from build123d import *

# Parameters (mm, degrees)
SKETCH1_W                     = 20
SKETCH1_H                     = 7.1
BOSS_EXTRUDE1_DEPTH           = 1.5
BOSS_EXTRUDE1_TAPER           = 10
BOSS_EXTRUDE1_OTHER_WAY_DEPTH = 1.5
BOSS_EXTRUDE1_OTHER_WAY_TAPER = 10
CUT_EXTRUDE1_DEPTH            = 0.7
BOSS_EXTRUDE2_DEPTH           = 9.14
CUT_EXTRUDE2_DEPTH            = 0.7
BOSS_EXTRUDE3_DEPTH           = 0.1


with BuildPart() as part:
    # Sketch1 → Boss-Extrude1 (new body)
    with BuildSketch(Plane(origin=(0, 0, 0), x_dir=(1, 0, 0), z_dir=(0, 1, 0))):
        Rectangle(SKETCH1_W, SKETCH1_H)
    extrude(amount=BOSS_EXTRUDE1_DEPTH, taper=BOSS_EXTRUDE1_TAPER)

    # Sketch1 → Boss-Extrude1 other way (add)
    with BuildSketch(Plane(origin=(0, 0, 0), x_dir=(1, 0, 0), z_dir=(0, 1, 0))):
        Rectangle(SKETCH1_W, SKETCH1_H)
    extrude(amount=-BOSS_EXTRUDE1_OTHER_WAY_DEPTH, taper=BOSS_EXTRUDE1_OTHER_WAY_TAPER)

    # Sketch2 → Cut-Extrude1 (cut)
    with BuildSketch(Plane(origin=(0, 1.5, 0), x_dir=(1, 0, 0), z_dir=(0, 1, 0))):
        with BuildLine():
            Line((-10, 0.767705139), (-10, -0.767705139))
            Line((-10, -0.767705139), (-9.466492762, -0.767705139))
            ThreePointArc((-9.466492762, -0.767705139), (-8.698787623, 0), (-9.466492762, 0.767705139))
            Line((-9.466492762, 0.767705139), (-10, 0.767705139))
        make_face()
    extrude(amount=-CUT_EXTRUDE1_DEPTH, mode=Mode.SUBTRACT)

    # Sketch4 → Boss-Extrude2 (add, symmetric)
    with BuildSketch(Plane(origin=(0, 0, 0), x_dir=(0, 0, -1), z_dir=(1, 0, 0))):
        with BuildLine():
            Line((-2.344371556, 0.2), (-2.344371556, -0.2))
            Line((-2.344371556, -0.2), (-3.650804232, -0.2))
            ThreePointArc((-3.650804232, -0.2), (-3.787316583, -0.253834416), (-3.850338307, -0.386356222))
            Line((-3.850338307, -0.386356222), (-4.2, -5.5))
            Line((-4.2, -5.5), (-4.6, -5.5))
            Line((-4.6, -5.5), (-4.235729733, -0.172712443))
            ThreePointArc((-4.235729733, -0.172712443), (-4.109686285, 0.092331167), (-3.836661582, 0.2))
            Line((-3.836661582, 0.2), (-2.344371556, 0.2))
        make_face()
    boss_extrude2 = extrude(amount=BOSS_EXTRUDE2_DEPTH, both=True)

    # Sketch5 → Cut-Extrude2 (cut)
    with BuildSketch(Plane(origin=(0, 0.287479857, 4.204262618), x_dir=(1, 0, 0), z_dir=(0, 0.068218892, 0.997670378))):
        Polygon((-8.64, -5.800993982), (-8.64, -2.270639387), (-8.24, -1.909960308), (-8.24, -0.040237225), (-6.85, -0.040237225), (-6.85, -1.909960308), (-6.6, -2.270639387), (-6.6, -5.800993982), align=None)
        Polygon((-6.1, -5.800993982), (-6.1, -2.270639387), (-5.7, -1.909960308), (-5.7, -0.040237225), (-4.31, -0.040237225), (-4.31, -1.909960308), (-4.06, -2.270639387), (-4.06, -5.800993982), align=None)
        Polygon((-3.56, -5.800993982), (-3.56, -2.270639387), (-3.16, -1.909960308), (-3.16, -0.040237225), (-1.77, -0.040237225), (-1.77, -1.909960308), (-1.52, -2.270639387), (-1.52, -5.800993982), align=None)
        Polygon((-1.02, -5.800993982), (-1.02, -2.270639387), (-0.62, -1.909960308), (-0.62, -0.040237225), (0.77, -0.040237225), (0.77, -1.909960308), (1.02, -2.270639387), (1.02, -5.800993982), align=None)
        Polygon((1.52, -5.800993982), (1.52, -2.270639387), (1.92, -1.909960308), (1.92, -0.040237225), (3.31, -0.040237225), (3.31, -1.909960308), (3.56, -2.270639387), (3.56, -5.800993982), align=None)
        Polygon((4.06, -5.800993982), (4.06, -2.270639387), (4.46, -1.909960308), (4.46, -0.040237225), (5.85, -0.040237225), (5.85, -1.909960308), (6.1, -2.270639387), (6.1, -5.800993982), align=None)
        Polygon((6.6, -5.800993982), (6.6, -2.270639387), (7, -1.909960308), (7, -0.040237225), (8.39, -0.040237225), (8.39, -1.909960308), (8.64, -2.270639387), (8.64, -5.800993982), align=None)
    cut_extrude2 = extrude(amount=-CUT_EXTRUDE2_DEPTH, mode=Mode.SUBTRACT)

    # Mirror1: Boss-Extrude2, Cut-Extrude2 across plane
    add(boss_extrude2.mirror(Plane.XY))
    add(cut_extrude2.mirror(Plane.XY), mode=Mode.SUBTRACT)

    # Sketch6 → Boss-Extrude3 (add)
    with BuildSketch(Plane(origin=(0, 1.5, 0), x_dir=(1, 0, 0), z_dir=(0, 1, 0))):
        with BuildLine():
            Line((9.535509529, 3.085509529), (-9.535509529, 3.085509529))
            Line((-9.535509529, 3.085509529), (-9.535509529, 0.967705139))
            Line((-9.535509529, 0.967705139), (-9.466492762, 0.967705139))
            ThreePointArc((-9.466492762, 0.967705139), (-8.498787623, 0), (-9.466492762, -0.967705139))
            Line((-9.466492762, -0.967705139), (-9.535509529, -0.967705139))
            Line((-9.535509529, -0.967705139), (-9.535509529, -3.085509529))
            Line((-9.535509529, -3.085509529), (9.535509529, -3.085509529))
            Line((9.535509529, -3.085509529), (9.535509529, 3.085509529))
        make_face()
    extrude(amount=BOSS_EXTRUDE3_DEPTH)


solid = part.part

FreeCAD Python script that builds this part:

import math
import FreeCAD as App
import Part
import Sketcher
from FreeCAD import Vector


def add_polygon(sketch, points):
    """Adds a closed chain of lines whose ends are joined by coincident constraints."""
    first, n = sketch.GeometryCount, len(points)
    for a, b in zip(points, points[1:] + points[:1]):
        sketch.addGeometry(Part.LineSegment(App.Vector(*a, 0), App.Vector(*b, 0)), False)
    for i in range(n):
        sketch.addConstraint(Sketcher.Constraint("Coincident", first + i, 2, first + (i + 1) % n, 1))

doc = App.newDocument("Part")
params = doc.addObject("Spreadsheet::Sheet", "Params")
for row, (alias, value) in enumerate([
    ("sketch1_width", "20 mm"),
    ("sketch1_height", "7.1 mm"),
    ("pad1_length", "1.5 mm"),
    ("pad1_taper", "-10 deg"),
    ("sketch2_width", "20 mm"),
    ("sketch2_height", "7.1 mm"),
    ("pad2_length", "1.5 mm"),
    ("pad2_taper", "-10 deg"),
    ("pocket1_length", "0.7 mm"),
    ("sketch4_radius", "0.4 mm"),
    ("sketch4_radius2", "0.2 mm"),
    ("pad3_length", "18.28 mm"),
    ("sketch5_width", "2.04 mm"),
    ("sketch5_width2", "1.39 mm"),
    ("pocket2_length", "0.7 mm"),
    ("pad4_length", "0.1 mm"),
], start=1):
    params.set(f"A{row}", alias)
    params.set(f"B{row}", "=" + value)
    params.setAlias(f"B{row}", alias)

body = doc.addObject("PartDesign::Body", "Body")

sketch1 = body.newObject("Sketcher::SketchObject", "Sketch")
sketch1.AttachmentSupport = (doc.getObject("XZ_Plane"), [""])
sketch1.MapMode = "FlatFace"
add_polygon(sketch1, [(-10, -4), (-10, 4), (10, 4), (10, -4)])
sketch1.addConstraint([
    Sketcher.Constraint("Vertical", 0),
    Sketcher.Constraint("Horizontal", 1),
    Sketcher.Constraint("Vertical", 2),
    Sketcher.Constraint("Horizontal", 3),
    Sketcher.Constraint("Symmetric", 0, 2, 2, 2, -1, 1),
    Sketcher.Constraint("DistanceX", 1, 1, 1, 2, 20.0),
    Sketcher.Constraint("DistanceY", 0, 1, 0, 2, 7.1),
])
sketch1.setExpression("Constraints[9]", "Params.sketch1_width")
sketch1.setExpression("Constraints[10]", "Params.sketch1_height")
pad1 = body.newObject("PartDesign::Pad", "Pad")
pad1.Profile = sketch1
pad1.setExpression("Length", "Params.pad1_length")
pad1.Reversed = True
pad1.setExpression("TaperAngle", "Params.pad1_taper")

sketch2 = body.newObject("Sketcher::SketchObject", "Sketch001")
sketch2.AttachmentSupport = (doc.getObject("XZ_Plane"), [""])
sketch2.MapMode = "FlatFace"
add_polygon(sketch2, [(-10, -4), (-10, 4), (10, 4), (10, -4)])
sketch2.addConstraint([
    Sketcher.Constraint("Vertical", 0),
    Sketcher.Constraint("Horizontal", 1),
    Sketcher.Constraint("Vertical", 2),
    Sketcher.Constraint("Horizontal", 3),
    Sketcher.Constraint("Symmetric", 0, 2, 2, 2, -1, 1),
    Sketcher.Constraint("DistanceX", 1, 1, 1, 2, 20.0),
    Sketcher.Constraint("DistanceY", 0, 1, 0, 2, 7.1),
])
sketch2.setExpression("Constraints[9]", "Params.sketch2_width")
sketch2.setExpression("Constraints[10]", "Params.sketch2_height")
pad2 = body.newObject("PartDesign::Pad", "Pad001")
pad2.Profile = sketch2
pad2.setExpression("Length", "Params.pad2_length")
pad2.setExpression("TaperAngle", "Params.pad2_taper")

sketch3 = body.newObject("Sketcher::SketchObject", "Sketch002")
sketch3.AttachmentSupport = (doc.getObject("XZ_Plane"), [""])
sketch3.MapMode = "FlatFace"
sketch3.AttachmentOffset = App.Placement(Vector(0, 0, -1.5), App.Rotation())
sketch3.addGeometry([
    Part.LineSegment(Vector(-10, -0.8, 0), Vector(-10, 0.8, 0)),
    Part.LineSegment(Vector(-10, 0.8, 0), Vector(-9.5, 0.8, 0)),
    Part.ArcOfCircle(Part.Circle(Vector(-9.5, 0, 0), Vector(0, 0, 1), 0.8), math.radians(-90), math.radians(90)),
    Part.LineSegment(Vector(-9.5, -0.8, 0), Vector(-10, -0.8, 0)),
], False)
sketch3.addConstraint([
    Sketcher.Constraint("Coincident", 0, 2, 1, 1),
    Sketcher.Constraint("Tangent", 1, 2, 2, 2),
    Sketcher.Constraint("Tangent", 2, 1, 3, 1),
    Sketcher.Constraint("Coincident", 3, 2, 0, 1),
    Sketcher.Constraint("Vertical", 0),
    Sketcher.Constraint("Horizontal", 1),
    Sketcher.Constraint("Horizontal", 3),
    Sketcher.Constraint("PointOnObject", 2, 3, -1),
    Sketcher.Constraint("DistanceX", 0, 2, -1, 1, 10.0),
    Sketcher.Constraint("Radius", 2, 0.767705),
    Sketcher.Constraint("DistanceX", 1, 1, 1, 2, 0.533507),
])
pocket1 = body.newObject("PartDesign::Pocket", "Pocket")
pocket1.Profile = sketch3
pocket1.setExpression("Length", "Params.pocket1_length")
pocket1.Reversed = True

sketch4 = body.newObject("Sketcher::SketchObject", "Sketch003")
sketch4.AttachmentSupport = (doc.getObject("YZ_Plane"), [""])
sketch4.MapMode = "FlatFace"
sketch4.addGeometry([
    Part.LineSegment(Vector(-0.2, 2.34, 0), Vector(0.2, 2.34, 0)),
    Part.LineSegment(Vector(0.2, 2.34, 0), Vector(0.2, 3.84, 0)),
    Part.ArcOfCircle(Part.Circle(Vector(-0.2, 3.84, 0), Vector(0, 0, 1), 0.4), math.radians(0), math.radians(86)),
    Part.LineSegment(Vector(-0.17, 4.24, 0), Vector(-5.5, 4.6, 0)),
    Part.LineSegment(Vector(-5.5, 4.6, 0), Vector(-5.5, 4.2, 0)),
    Part.LineSegment(Vector(-5.5, 4.2, 0), Vector(-0.39, 3.85, 0)),
    Part.ArcOfCircle(Part.Circle(Vector(-0.4, 3.65, 0), Vector(0, 0, 1), 0.2), math.radians(0), math.radians(86)),
    Part.LineSegment(Vector(-0.2, 3.65, 0), Vector(-0.2, 2.34, 0)),
], False)
sketch4.addConstraint([
    Sketcher.Constraint("Coincident", 0, 2, 1, 1),
    Sketcher.Constraint("Tangent", 1, 2, 2, 1),
    Sketcher.Constraint("Tangent", 2, 2, 3, 1),
    Sketcher.Constraint("Coincident", 3, 2, 4, 1),
    Sketcher.Constraint("Coincident", 4, 2, 5, 1),
    Sketcher.Constraint("Tangent", 5, 2, 6, 2),
    Sketcher.Constraint("Tangent", 6, 1, 7, 1),
    Sketcher.Constraint("Coincident", 7, 2, 0, 1),
    Sketcher.Constraint("Horizontal", 0),
    Sketcher.Constraint("Vertical", 1),
    Sketcher.Constraint("Vertical", 4),
    Sketcher.Constraint("Vertical", 7),
    Sketcher.Constraint("Parallel", 3, 5),
    Sketcher.Constraint("Vertical", 2, 3, 6, 1),
    Sketcher.Constraint("Equal", 0, 4),
    Sketcher.Constraint("Radius", 2, 0.4),
    Sketcher.Constraint("Radius", 6, 0.2),
    Sketcher.Constraint("DistanceX", 2, 3, -1, 1, 0.2),
    Sketcher.Constraint("DistanceX", 3, 2, -1, 1, 5.5),
    Sketcher.Constraint("DistanceY", -1, 1, 3, 2, 4.6),
    Sketcher.Constraint("DistanceY", 1, 1, 1, 2, 1.49229),
    Sketcher.Constraint("DistanceY", 7, 2, 7, 1, 1.306433),
])
sketch4.setExpression("Constraints[15]", "Params.sketch4_radius")
sketch4.setExpression("Constraints[16]", "Params.sketch4_radius2")
pad3 = body.newObject("PartDesign::Pad", "Pad002")
pad3.Profile = sketch4
pad3.setExpression("Length", "Params.pad3_length")
pad3.Midplane = True

sketch5 = body.newObject("Sketcher::SketchObject", "Sketch004")
sketch5.Placement = App.Placement(Vector(0, 0.28748, 4.204263), App.Rotation(Vector(1, 0, 0), Vector(0, 0.997670378, -0.068218892), Vector(0, 0.068218892, 0.997670378), "ZXY"))
add_polygon(sketch5, [(-8.64, -2.27), (-8.64, -5.8), (-6.6, -5.8), (-6.6, -2.27), (-6.85, -1.91), (-6.85, -0.04), (-8.24, -0.04), (-8.24, -1.91)])
add_polygon(sketch5, [(-6.1, -2.27), (-6.1, -5.8), (-4.06, -5.8), (-4.06, -2.27), (-4.31, -1.91), (-4.31, -0.04), (-5.7, -0.04), (-5.7, -1.91)])
add_polygon(sketch5, [(-3.56, -2.27), (-3.56, -5.8), (-1.52, -5.8), (-1.52, -2.27), (-1.77, -1.91), (-1.77, -0.04), (-3.16, -0.04), (-3.16, -1.91)])
add_polygon(sketch5, [(-1.02, -2.27), (-1.02, -5.8), (1.02, -5.8), (1.02, -2.27), (0.77, -1.91), (0.77, -0.04), (-0.62, -0.04), (-0.62, -1.91)])
add_polygon(sketch5, [(1.52, -2.27), (1.52, -5.8), (3.56, -5.8), (3.56, -2.27), (3.31, -1.91), (3.31, -0.04), (1.92, -0.04), (1.92, -1.91)])
add_polygon(sketch5, [(4.06, -2.27), (4.06, -5.8), (6.1, -5.8), (6.1, -2.27), (5.85, -1.91), (5.85, -0.04), (4.46, -0.04), (4.46, -1.91)])
add_polygon(sketch5, [(6.6, -2.27), (6.6, -5.8), (8.64, -5.8), (8.64, -2.27), (8.39, -1.91), (8.39, -0.04), (7, -0.04), (7, -1.91)])
sketch5.addConstraint([
    Sketcher.Constraint("Vertical", 0),
    Sketcher.Constraint("Horizontal", 1),
    Sketcher.Constraint("Vertical", 2),
    Sketcher.Constraint("Vertical", 4),
    Sketcher.Constraint("Horizontal", 5),
    Sketcher.Constraint("Vertical", 6),
    Sketcher.Constraint("Vertical", 8),
    Sketcher.Constraint("Horizontal", 9),
    Sketcher.Constraint("Vertical", 10),
    Sketcher.Constraint("Vertical", 12),
    Sketcher.Constraint("Horizontal", 13),
    Sketcher.Constraint("Vertical", 14),
    Sketcher.Constraint("Vertical", 16),
    Sketcher.Constraint("Horizontal", 17),
    Sketcher.Constraint("Vertical", 18),
    Sketcher.Constraint("Vertical", 20),
    Sketcher.Constraint("Horizontal", 21),
    Sketcher.Constraint("Vertical", 22),
    Sketcher.Constraint("Vertical", 24),
    Sketcher.Constraint("Horizontal", 25),
    Sketcher.Constraint("Vertical", 26),
    Sketcher.Constraint("Vertical", 28),
    Sketcher.Constraint("Horizontal", 29),
    Sketcher.Constraint("Vertical", 30),
    Sketcher.Constraint("Vertical", 32),
    Sketcher.Constraint("Horizontal", 33),
    Sketcher.Constraint("Vertical", 34),
    Sketcher.Constraint("Vertical", 36),
    Sketcher.Constraint("Horizontal", 37),
    Sketcher.Constraint("Vertical", 38),
    Sketcher.Constraint("Vertical", 40),
    Sketcher.Constraint("Horizontal", 41),
    Sketcher.Constraint("Vertical", 42),
    Sketcher.Constraint("Vertical", 44),
    Sketcher.Constraint("Horizontal", 45),
    Sketcher.Constraint("Vertical", 46),
    Sketcher.Constraint("Vertical", 48),
    Sketcher.Constraint("Horizontal", 49),
    Sketcher.Constraint("Vertical", 50),
    Sketcher.Constraint("Vertical", 52),
    Sketcher.Constraint("Horizontal", 53),
    Sketcher.Constraint("Vertical", 54),
    Sketcher.Constraint("Symmetric", 26, 2, 31, 2, -2),
    Sketcher.Constraint("Symmetric", 17, 2, 32, 2, -2),
    Sketcher.Constraint("Symmetric", 23, 2, 34, 2, -2),
    Sketcher.Constraint("Symmetric", 9, 2, 40, 2, -2),
    Sketcher.Constraint("Symmetric", 15, 2, 42, 2, -2),
    Sketcher.Constraint("Symmetric", 1, 2, 48, 2, -2),
    Sketcher.Constraint("Symmetric", 7, 2, 50, 2, -2),
    Sketcher.Constraint("Parallel", 3, 11),
    Sketcher.Constraint("Parallel", 7, 15),
    Sketcher.Constraint("Parallel", 11, 19),
    Sketcher.Constraint("Parallel", 15, 23),
    Sketcher.Constraint("Parallel", 19, 27),
    Sketcher.Constraint("Parallel", 23, 31),
    Sketcher.Constraint("Parallel", 27, 35),
    Sketcher.Constraint("Parallel", 31, 39),
    Sketcher.Constraint("Parallel", 35, 43),
    Sketcher.Constraint("Parallel", 39, 47),
    Sketcher.Constraint("Parallel", 43, 51),
    Sketcher.Constraint("Parallel", 47, 55),
    Sketcher.Constraint("Horizontal", 3, 2, 6, 2),
    Sketcher.Constraint("Horizontal", 2, 2, 7, 2),
    Sketcher.Constraint("Horizontal", 1, 2, 8, 2),
    Sketcher.Constraint("Horizontal", 7, 2, 10, 2),
    Sketcher.Constraint("Horizontal", 6, 2, 11, 2),
    Sketcher.Constraint("Horizontal", 5, 2, 12, 2),
    Sketcher.Constraint("Horizontal", 11, 2, 14, 2),
    Sketcher.Constraint("Horizontal", 10, 2, 15, 2),
    Sketcher.Constraint("Horizontal", 9, 2, 16, 2),
    Sketcher.Constraint("Horizontal", 15, 2, 18, 2),
    Sketcher.Constraint("Horizontal", 14, 2, 19, 2),
    Sketcher.Constraint("Horizontal", 13, 2, 20, 2),
    Sketcher.Constraint("Horizontal", 19, 2, 22, 2),
    Sketcher.Constraint("Horizontal", 18, 2, 23, 2),
    Sketcher.Constraint("Horizontal", 17, 2, 24, 2),
    Sketcher.Constraint("Horizontal", 23, 2, 26, 2),
    Sketcher.Constraint("Horizontal", 22, 2, 27, 2),
    Sketcher.Constraint("Horizontal", 21, 2, 28, 2),
    Sketcher.Constraint("Horizontal", 27, 2, 30, 2),
    Sketcher.Constraint("Horizontal", 30, 2, 35, 2),
    Sketcher.Constraint("Horizontal", 29, 2, 36, 2),
    Sketcher.Constraint("Horizontal", 35, 2, 38, 2),
    Sketcher.Constraint("Horizontal", 34, 2, 39, 2),
    Sketcher.Constraint("Horizontal", 38, 2, 43, 2),
    Sketcher.Constraint("Horizontal", 37, 2, 44, 2),
    Sketcher.Constraint("Horizontal", 43, 2, 46, 2),
    Sketcher.Constraint("Horizontal", 42, 2, 47, 2),
    Sketcher.Constraint("Horizontal", 46, 2, 51, 2),
    Sketcher.Constraint("Horizontal", 45, 2, 52, 2),
    Sketcher.Constraint("Horizontal", 51, 2, 54, 2),
    Sketcher.Constraint("Horizontal", 50, 2, 55, 2),
    Sketcher.Constraint("Equal", 1, 9),
    Sketcher.Constraint("Equal", 9, 17),
    Sketcher.Constraint("Equal", 17, 25),
    Sketcher.Constraint("DistanceX", -1, 1, 53, 2, 7.0),
    Sketcher.Constraint("DistanceX", 1, 1, 1, 2, 2.04),
    Sketcher.Constraint("DistanceX", 5, 2, 5, 1, 1.39),
    Sketcher.Constraint("DistanceX", 1, 2, -1, 1, 6.6),
    Sketcher.Constraint("DistanceX", 8, 2, -1, 1, 6.1),
    Sketcher.Constraint("DistanceX", 9, 2, 16, 2, 0.5),
    Sketcher.Constraint("Distance", 7, 0.538599),
    Sketcher.Constraint("DistanceY", 0, 2, 0, 1, 3.530355),
    Sketcher.Constraint("DistanceY", 4, 1, 4, 2, 1.869723),
    Sketcher.Constraint("DistanceY", 2, 2, -1, 1, 2.270639),
])
sketch5.setExpression("Constraints[152]", "Params.sketch5_width")
sketch5.setExpression("Constraints[153]", "Params.sketch5_width2")
pocket2 = body.newObject("PartDesign::Pocket", "Pocket001")
pocket2.Profile = sketch5
pocket2.setExpression("Length", "Params.pocket2_length")
doc.recompute()

mirrored = body.newObject("PartDesign::Mirrored", "Mirrored")
mirrored.Originals = [pad3, pocket2]
mirrored.MirrorPlane = (doc.getObject("XY_Plane"), [""])
body.Tip = mirrored

sketch6 = body.newObject("Sketcher::SketchObject", "Sketch005")
sketch6.AttachmentSupport = (doc.getObject("XZ_Plane"), [""])
sketch6.MapMode = "FlatFace"
sketch6.AttachmentOffset = App.Placement(Vector(0, 0, -1.5), App.Rotation())
sketch6.addGeometry([
    Part.LineSegment(Vector(9.54, -3.09, 0), Vector(-9.54, -3.09, 0)),
    Part.LineSegment(Vector(-9.54, -3.09, 0), Vector(-9.54, -0.97, 0)),
    Part.LineSegment(Vector(-9.54, -0.97, 0), Vector(-9.47, -0.97, 0)),
    Part.ArcOfCircle(Part.Circle(Vector(-9.47, 0, 0), Vector(0, 0, 1), 0.97), math.radians(-90), math.radians(90)),
    Part.LineSegment(Vector(-9.47, 0.97, 0), Vector(-9.54, 0.97, 0)),
    Part.LineSegment(Vector(-9.54, 0.97, 0), Vector(-9.54, 3.09, 0)),
    Part.LineSegment(Vector(-9.54, 3.09, 0), Vector(9.54, 3.09, 0)),
    Part.LineSegment(Vector(9.54, 3.09, 0), Vector(9.54, -3.09, 0)),
], False)
sketch6.addConstraint([
    Sketcher.Constraint("Coincident", 0, 2, 1, 1),
    Sketcher.Constraint("Coincident", 1, 2, 2, 1),
    Sketcher.Constraint("Tangent", 2, 2, 3, 1),
    Sketcher.Constraint("Tangent", 3, 2, 4, 1),
    Sketcher.Constraint("Coincident", 4, 2, 5, 1),
    Sketcher.Constraint("Coincident", 5, 2, 6, 1),
    Sketcher.Constraint("Coincident", 6, 2, 7, 1),
    Sketcher.Constraint("Coincident", 7, 2, 0, 1),
    Sketcher.Constraint("Horizontal", 0),
    Sketcher.Constraint("Vertical", 1),
    Sketcher.Constraint("Horizontal", 2),
    Sketcher.Constraint("Horizontal", 4),
    Sketcher.Constraint("Vertical", 5),
    Sketcher.Constraint("Horizontal", 6),
    Sketcher.Constraint("Vertical", 7),
    Sketcher.Constraint("Symmetric", 0, 2, 6, 2, -1, 1),
    Sketcher.Constraint("Symmetric", 1, 2, 4, 2, -1),
    Sketcher.Constraint("Radius", 3, 0.967705),
    Sketcher.Constraint("DistanceX", 0, 2, 0, 1, 19.071019),
    Sketcher.Constraint("DistanceY", 7, 2, 7, 1, 6.171019),
    Sketcher.Constraint("DistanceX", 2, 1, 2, 2, 0.069017),
])
pad4 = body.newObject("PartDesign::Pad", "Pad003")
pad4.Profile = sketch6
pad4.setExpression("Length", "Params.pad4_length")
pad4.Reversed = True

doc.recompute()
